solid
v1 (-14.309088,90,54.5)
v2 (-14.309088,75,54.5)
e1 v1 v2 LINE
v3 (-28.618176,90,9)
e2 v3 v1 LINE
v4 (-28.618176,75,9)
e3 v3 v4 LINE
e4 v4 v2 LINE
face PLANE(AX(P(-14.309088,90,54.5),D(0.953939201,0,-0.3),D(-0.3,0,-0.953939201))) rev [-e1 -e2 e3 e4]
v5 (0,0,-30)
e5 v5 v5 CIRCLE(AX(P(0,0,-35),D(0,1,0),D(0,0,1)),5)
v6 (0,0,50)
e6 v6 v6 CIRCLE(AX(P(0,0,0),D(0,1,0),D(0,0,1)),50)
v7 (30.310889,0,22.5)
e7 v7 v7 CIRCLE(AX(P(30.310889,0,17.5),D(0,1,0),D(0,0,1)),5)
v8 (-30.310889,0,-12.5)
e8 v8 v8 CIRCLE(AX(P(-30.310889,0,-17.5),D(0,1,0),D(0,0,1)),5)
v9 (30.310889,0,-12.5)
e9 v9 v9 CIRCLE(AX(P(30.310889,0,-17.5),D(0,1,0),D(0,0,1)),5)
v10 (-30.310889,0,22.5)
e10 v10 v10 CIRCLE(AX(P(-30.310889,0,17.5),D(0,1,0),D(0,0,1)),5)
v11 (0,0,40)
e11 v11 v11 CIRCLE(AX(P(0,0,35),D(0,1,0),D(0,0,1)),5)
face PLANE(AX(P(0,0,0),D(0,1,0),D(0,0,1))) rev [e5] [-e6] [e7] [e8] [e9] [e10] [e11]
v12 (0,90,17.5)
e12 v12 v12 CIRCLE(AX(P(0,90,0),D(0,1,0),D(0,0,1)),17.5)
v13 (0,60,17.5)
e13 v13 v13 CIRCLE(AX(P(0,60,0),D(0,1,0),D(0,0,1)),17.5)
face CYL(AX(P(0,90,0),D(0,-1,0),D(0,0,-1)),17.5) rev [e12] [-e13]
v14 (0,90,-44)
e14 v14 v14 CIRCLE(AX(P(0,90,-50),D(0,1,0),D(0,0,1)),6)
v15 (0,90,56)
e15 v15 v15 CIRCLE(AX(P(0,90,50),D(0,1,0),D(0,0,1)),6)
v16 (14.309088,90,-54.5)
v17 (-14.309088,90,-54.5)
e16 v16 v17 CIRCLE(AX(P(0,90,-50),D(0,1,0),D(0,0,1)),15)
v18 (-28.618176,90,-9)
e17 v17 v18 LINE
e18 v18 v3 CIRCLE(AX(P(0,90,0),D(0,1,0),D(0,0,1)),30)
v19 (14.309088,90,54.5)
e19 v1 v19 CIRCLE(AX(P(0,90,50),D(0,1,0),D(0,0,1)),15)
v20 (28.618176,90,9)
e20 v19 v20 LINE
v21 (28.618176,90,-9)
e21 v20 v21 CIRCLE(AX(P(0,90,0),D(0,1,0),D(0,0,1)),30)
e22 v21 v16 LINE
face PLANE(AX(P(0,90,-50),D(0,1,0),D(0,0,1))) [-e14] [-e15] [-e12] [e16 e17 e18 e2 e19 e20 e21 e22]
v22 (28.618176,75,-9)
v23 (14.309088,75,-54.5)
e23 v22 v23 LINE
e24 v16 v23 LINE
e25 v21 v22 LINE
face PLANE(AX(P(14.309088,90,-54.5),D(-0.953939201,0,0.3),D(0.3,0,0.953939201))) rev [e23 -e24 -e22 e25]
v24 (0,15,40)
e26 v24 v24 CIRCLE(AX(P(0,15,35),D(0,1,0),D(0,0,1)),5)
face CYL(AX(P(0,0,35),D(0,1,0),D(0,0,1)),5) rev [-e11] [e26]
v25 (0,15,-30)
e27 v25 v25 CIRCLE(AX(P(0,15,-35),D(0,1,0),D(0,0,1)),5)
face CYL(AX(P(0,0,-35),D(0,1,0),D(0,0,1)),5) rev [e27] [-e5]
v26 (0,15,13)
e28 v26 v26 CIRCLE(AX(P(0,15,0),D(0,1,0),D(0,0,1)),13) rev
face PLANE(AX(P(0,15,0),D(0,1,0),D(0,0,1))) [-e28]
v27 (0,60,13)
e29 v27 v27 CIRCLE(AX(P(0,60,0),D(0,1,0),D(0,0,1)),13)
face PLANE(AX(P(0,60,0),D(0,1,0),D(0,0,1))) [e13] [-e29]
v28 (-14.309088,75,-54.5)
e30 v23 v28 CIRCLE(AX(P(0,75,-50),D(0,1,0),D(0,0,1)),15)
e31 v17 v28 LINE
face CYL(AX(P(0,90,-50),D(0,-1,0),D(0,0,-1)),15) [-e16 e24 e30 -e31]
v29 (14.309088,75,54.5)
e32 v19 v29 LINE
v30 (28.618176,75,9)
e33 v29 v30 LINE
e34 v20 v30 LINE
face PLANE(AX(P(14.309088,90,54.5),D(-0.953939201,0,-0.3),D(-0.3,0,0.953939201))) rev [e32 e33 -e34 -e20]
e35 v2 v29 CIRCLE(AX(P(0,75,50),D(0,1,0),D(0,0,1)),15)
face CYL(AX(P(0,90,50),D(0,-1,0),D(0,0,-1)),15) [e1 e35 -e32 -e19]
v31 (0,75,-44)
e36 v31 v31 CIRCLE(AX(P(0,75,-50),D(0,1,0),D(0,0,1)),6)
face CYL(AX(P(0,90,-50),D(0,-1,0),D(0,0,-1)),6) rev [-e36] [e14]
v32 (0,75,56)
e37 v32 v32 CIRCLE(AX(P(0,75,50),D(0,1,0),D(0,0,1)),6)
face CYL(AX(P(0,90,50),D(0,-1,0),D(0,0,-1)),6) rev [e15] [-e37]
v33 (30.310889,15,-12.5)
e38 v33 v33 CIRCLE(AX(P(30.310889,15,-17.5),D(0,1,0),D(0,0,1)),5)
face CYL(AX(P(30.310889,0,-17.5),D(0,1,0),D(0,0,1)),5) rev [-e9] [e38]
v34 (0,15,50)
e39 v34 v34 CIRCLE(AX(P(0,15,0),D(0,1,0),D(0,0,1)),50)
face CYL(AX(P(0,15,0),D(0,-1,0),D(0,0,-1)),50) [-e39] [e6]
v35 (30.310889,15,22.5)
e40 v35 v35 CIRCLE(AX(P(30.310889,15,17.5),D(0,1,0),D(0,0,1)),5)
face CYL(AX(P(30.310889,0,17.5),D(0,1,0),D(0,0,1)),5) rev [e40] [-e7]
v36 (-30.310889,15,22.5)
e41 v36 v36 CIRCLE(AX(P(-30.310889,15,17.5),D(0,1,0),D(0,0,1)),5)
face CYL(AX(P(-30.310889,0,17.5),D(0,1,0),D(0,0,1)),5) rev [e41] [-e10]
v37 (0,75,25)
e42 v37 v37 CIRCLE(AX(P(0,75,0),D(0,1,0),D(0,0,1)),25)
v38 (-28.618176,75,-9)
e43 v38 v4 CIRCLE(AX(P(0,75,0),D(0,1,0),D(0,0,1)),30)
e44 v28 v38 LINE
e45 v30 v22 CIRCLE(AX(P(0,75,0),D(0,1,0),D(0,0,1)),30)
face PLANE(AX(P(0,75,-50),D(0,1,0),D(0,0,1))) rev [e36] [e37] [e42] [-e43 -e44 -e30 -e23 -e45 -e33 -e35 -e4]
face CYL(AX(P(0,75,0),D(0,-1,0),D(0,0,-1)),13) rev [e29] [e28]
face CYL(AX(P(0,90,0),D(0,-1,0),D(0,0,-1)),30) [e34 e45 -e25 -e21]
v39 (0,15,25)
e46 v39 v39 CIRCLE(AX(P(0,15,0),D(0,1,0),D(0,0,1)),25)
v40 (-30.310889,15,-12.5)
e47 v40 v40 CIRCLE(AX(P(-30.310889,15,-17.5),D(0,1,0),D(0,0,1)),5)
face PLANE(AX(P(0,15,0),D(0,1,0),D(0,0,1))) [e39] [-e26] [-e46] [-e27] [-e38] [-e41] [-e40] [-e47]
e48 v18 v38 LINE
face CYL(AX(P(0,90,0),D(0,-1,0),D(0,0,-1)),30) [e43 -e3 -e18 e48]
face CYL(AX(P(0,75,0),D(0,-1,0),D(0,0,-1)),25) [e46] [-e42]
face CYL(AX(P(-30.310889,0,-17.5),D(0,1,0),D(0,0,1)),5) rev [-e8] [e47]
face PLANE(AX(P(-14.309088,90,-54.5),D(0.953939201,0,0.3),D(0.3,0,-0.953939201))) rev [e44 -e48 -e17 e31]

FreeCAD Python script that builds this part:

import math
import FreeCAD as App
import Part
import Sketcher

doc = App.newDocument("Part")
params = doc.addObject("Spreadsheet::Sheet", "Params")
for row, (alias, value) in enumerate([
    ("sketch1_diameter", "100 mm"),
    ("pad1_length", "15 mm"),
    ("sketch2_diameter", "10 mm"),
    ("sketch3_diameter", "50 mm"),
    ("sketch3_diameter2", "26 mm"),
    ("pad2_length", "60 mm"),
    ("sketch4_diameter", "12 mm"),
    ("sketch4_diameter2", "35 mm"),
    ("sketch4_radius", "15 mm"),
    ("sketch4_radius2", "30 mm"),
    ("pad3_length", "15 mm"),
    ("sketch5_diameter", "35 mm"),
    ("pocket2_length", "30 mm"),
], start=1):
    params.set(f"A{row}", alias)
    params.set(f"B{row}", "=" + value)
    params.setAlias(f"B{row}", alias)

body = doc.addObject("PartDesign::Body", "Body")

# Sketch on XZ plane
sketch1 = body.newObject("Sketcher::SketchObject", "Sketch")
sketch1.AttachmentSupport = (doc.getObject("XZ_Plane"), [""])
sketch1.MapMode = "FlatFace"
sketch1.addGeometry(Part.Circle(App.Vector(0, 0, 0), App.Vector(0, 0, 1), 50), False)
sketch1.addConstraint([
    Sketcher.Constraint("Coincident", 0, 3, -1, 1),
    Sketcher.Constraint("Diameter", 0, 100.0),
])
sketch1.setExpression("Constraints[1]", "Params.sketch1_diameter")
pad1 = body.newObject("PartDesign::Pad", "Pad")
pad1.Profile = sketch1
pad1.setExpression("Length", "Params.pad1_length")
pad1.Reversed = True

# Sketch on XZ plane
sketch2 = body.newObject("Sketcher::SketchObject", "Sketch001")
sketch2.AttachmentSupport = (doc.getObject("XZ_Plane"), [""])
sketch2.MapMode = "FlatFace"
sketch2.AttachmentOffset = App.Placement(App.Vector(0, 0, -15), App.Rotation())
sketch2.addGeometry([
    Part.Circle(App.Vector(0, -35, 0), App.Vector(0, 0, 1), 5),  # 0
    Part.Circle(App.Vector(30, -18, 0), App.Vector(0, 0, 1), 5),  # 1
    Part.Circle(App.Vector(30, 18, 0), App.Vector(0, 0, 1), 5),  # 2
    Part.Circle(App.Vector(0, 35, 0), App.Vector(0, 0, 1), 5),  # 3
    Part.Circle(App.Vector(-30, 18, 0), App.Vector(0, 0, 1), 5),  # 4
    Part.Circle(App.Vector(-30, -18, 0), App.Vector(0, 0, 1), 5),  # 5
], False)
sketch2.addConstraint([
    Sketcher.Constraint("Equal", 0, 1),
    Sketcher.Constraint("Equal", 1, 2),
    Sketcher.Constraint("Equal", 2, 3),
    Sketcher.Constraint("Equal", 3, 4),
    Sketcher.Constraint("Equal", 4, 5),
    Sketcher.Constraint("Symmetric", 0, 3, 3, 3, -1, 1),
    Sketcher.Constraint("Symmetric", 1, 3, 4, 3, -1, 1),
    Sketcher.Constraint("Symmetric", 2, 3, 5, 3, -1, 1),
    Sketcher.Constraint("Symmetric", 2, 3, 4, 3, -2),
    Sketcher.Constraint("PointOnObject", 0, 3, -2),
    Sketcher.Constraint("Diameter", 0, 10.0),
    Sketcher.Constraint("DistanceY", 0, 3, -1, 1, 35.0),
    Sketcher.Constraint("DistanceY", 1, 3, 2, 3, 35.0),
    Sketcher.Constraint("DistanceX", -1, 1, 1, 3, 30.310889),
])
sketch2.setExpression("Constraints[10]", "Params.sketch2_diameter")
pocket1 = body.newObject("PartDesign::Pocket", "Pocket")
pocket1.Profile = sketch2
pocket1.Type = "ThroughAll"
pocket1.Reversed = True

# Sketch on XZ plane
sketch3 = body.newObject("Sketcher::SketchObject", "Sketch002")
sketch3.AttachmentSupport = (doc.getObject("XZ_Plane"), [""])
sketch3.MapMode = "FlatFace"
sketch3.AttachmentOffset = App.Placement(App.Vector(0, 0, -15), App.Rotation())
sketch3.addGeometry([
    Part.Circle(App.Vector(0, 0, 0), App.Vector(0, 0, 1), 25),
    Part.Circle(App.Vector(0, 0, 0), App.Vector(0, 0, 1), 13),
], False)
sketch3.addConstraint([
    Sketcher.Constraint("Coincident", 0, 3, -1, 1),
    Sketcher.Constraint("Coincident", 1, 3, -1, 1),
    Sketcher.Constraint("Diameter", 0, 50.0),
    Sketcher.Constraint("Diameter", 1, 26.0),
])
sketch3.setExpression("Constraints[2]", "Params.sketch3_diameter")
sketch3.setExpression("Constraints[3]", "Params.sketch3_diameter2")
pad2 = body.newObject("PartDesign::Pad", "Pad001")
pad2.Profile = sketch3
pad2.setExpression("Length", "Params.pad2_length")
pad2.Reversed = True

# Sketch on XZ plane
sketch4 = body.newObject("Sketcher::SketchObject", "Sketch003")
sketch4.AttachmentSupport = (doc.getObject("XZ_Plane"), [""])
sketch4.MapMode = "FlatFace"
sketch4.AttachmentOffset = App.Placement(App.Vector(0, 0, -75), App.Rotation())
sketch4.addGeometry([
    Part.LineSegment(App.Vector(29, -9, 0), App.Vector(14, -54, 0)),  # 0
    Part.ArcOfCircle(Part.Circle(App.Vector(0, -50, 0), App.Vector(0, 0, 1), 15), math.radians(-163), math.radians(-17)),  # 1
    Part.LineSegment(App.Vector(-14, -54, 0), App.Vector(-29, -9, 0)),  # 2
    Part.ArcOfCircle(Part.Circle(App.Vector(0, 0, 0), App.Vector(0, 0, 1), 30), math.radians(163), math.radians(197)),  # 3
    Part.LineSegment(App.Vector(-29, 9, 0), App.Vector(-14, 54, 0)),  # 4
    Part.ArcOfCircle(Part.Circle(App.Vector(0, 50, 0), App.Vector(0, 0, 1), 15), math.radians(17), math.radians(163)),  # 5
    Part.LineSegment(App.Vector(14, 54, 0), App.Vector(29, 9, 0)),  # 6
    Part.ArcOfCircle(Part.Circle(App.Vector(0, 0, 0), App.Vector(0, 0, 1), 30), math.radians(-17), math.radians(17)),  # 7
    Part.Circle(App.Vector(0, 50, 0), App.Vector(0, 0, 1), 6),  # 8
    Part.Circle(App.Vector(0, 0, 0), App.Vector(0, 0, 1), 18),  # 9
    Part.Circle(App.Vector(0, -50, 0), App.Vector(0, 0, 1), 6),  # 10
], False)
sketch4.addConstraint([
    Sketcher.Constraint("Tangent", 0, 2, 1, 2),
    Sketcher.Constraint("Tangent", 1, 1, 2, 1),
    Sketcher.Constraint("Tangent", 2, 2, 3, 2),
    Sketcher.Constraint("Tangent", 3, 1, 4, 1),
    Sketcher.Constraint("Tangent", 4, 2, 5, 2),
    Sketcher.Constraint("Tangent", 5, 1, 6, 1),
    Sketcher.Constraint("Tangent", 6, 2, 7, 2),
    Sketcher.Constraint("Tangent", 7, 1, 0, 1),
    Sketcher.Constraint("Coincident", 3, 3, -1, 1),
    Sketcher.Constraint("Coincident", 7, 3, -1, 1),
    Sketcher.Constraint("Coincident", 9, 3, -1, 1),
    Sketcher.Constraint("Coincident", 8, 3, 5, 3),
    Sketcher.Constraint("Coincident", 10, 3, 1, 3),
    Sketcher.Constraint("Equal", 1, 5),
    Sketcher.Constraint("Equal", 3, 7),
    Sketcher.Constraint("Equal", 8, 10),
    Sketcher.Constraint("Symmetric", 1, 3, 5, 3, -1, 1),
    Sketcher.Constraint("PointOnObject", 1, 3, -2),
    Sketcher.Constraint("Diameter", 8, 12.0),
    Sketcher.Constraint("Diameter", 9, 35.0),
    Sketcher.Constraint("Radius", 1, 15.0),
    Sketcher.Constraint("Radius", 3, 30.0),
    Sketcher.Constraint("DistanceY", 1, 3, -1, 1, 50.0),
])
sketch4.setExpression("Constraints[18]", "Params.sketch4_diameter")
sketch4.setExpression("Constraints[19]", "Params.sketch4_diameter2")
sketch4.setExpression("Constraints[20]", "Params.sketch4_radius")
sketch4.setExpression("Constraints[21]", "Params.sketch4_radius2")
pad3 = body.newObject("PartDesign::Pad", "Pad002")
pad3.Profile = sketch4
pad3.setExpression("Length", "Params.pad3_length")
pad3.Reversed = True

# Sketch on XZ plane
sketch5 = body.newObject("Sketcher::SketchObject", "Sketch004")
sketch5.AttachmentSupport = (doc.getObject("XZ_Plane"), [""])
sketch5.MapMode = "FlatFace"
sketch5.AttachmentOffset = App.Placement(App.Vector(0, 0, -60), App.Rotation())
sketch5.addGeometry(Part.Circle(App.Vector(0, 0, 0), App.Vector(0, 0, 1), 18), False)
sketch5.addConstraint([
    Sketcher.Constraint("Coincident", 0, 3, -1, 1),
    Sketcher.Constraint("Diameter", 0, 35.0),
])
sketch5.setExpression("Constraints[1]", "Params.sketch5_diameter")
pocket2 = body.newObject("PartDesign::Pocket", "Pocket001")
pocket2.Profile = sketch5
pocket2.setExpression("Length", "Params.pocket2_length")

doc.recompute()
